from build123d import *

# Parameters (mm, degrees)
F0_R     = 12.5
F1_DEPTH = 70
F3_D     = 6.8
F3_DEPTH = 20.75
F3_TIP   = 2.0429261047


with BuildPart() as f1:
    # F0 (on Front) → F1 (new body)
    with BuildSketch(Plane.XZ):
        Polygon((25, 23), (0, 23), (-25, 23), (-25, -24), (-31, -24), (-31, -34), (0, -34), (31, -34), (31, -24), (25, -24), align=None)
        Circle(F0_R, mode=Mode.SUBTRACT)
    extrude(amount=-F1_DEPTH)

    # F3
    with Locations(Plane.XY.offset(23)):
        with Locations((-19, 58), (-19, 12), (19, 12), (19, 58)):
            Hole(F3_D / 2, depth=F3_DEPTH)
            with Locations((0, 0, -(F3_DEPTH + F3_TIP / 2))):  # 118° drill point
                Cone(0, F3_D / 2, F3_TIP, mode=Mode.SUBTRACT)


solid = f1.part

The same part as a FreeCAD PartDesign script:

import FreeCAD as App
import Part
import Sketcher
Q = App.Units.Quantity

doc = App.newDocument("Part")
body = doc.addObject("PartDesign::Body", "Body")

# Sketch on XZ plane
sketch1 = doc.addObject("Sketcher::SketchObject", "Sketch")
body.addObject(sketch1)
sketch1.AttachmentSupport = (doc.XZ_Plane, [""])
sketch1.MapMode = "FlatFace"
sketch1.addGeometry([
    Part.LineSegment(App.Vector(25, 23, 0), App.Vector(-25, 23, 0)),  # 0
    Part.LineSegment(App.Vector(-25, 23, 0), App.Vector(-25, -24, 0)),  # 1
    Part.LineSegment(App.Vector(-25, -24, 0), App.Vector(-31, -24, 0)),  # 2
    Part.LineSegment(App.Vector(-31, -24, 0), App.Vector(-31, -34, 0)),  # 3
    Part.LineSegment(App.Vector(-31, -34, 0), App.Vector(31, -34, 0)),  # 4
    Part.LineSegment(App.Vector(31, -34, 0), App.Vector(31, -24, 0)),  # 5
    Part.LineSegment(App.Vector(31, -24, 0), App.Vector(25, -24, 0)),  # 6
    Part.LineSegment(App.Vector(25, -24, 0), App.Vector(25, 23, 0)),  # 7
    Part.Circle(App.Vector(0, 0, 0), App.Vector(0, 0, 1), 12),  # 8
], False)
sketch1.addConstraint([
    Sketcher.Constraint("Coincident", 0, 2, 1, 1),
    Sketcher.Constraint("Coincident", 1, 2, 2, 1),
    Sketcher.Constraint("Coincident", 2, 2, 3, 1),
    Sketcher.Constraint("Coincident", 3, 2, 4, 1),
    Sketcher.Constraint("Coincident", 4, 2, 5, 1),
    Sketcher.Constraint("Coincident", 5, 2, 6, 1),
    Sketcher.Constraint("Coincident", 6, 2, 7, 1),
    Sketcher.Constraint("Coincident", 7, 2, 0, 1),
    Sketcher.Constraint("Horizontal", 0),
    Sketcher.Constraint("Vertical", 1),
    Sketcher.Constraint("Horizontal", 2),
    Sketcher.Constraint("Vertical", 3),
    Sketcher.Constraint("Horizontal", 4),
    Sketcher.Constraint("Vertical", 5),
    Sketcher.Constraint("Horizontal", 6),
    Sketcher.Constraint("Vertical", 7),
    Sketcher.Constraint("Coincident", 8, 3, -1, 1),
    Sketcher.Constraint("Symmetric", 2, 2, 5, 2, -2),
    Sketcher.Constraint("Equal", 2, 6),
    Sketcher.Constraint("Diameter", 8, Q("25 mm")),
    Sketcher.Constraint("DistanceX", 0, 2, 0, 1, Q("50 mm")),
    Sketcher.Constraint("DistanceX", 2, 2, 2, 1, Q("6 mm")),
    Sketcher.Constraint("DistanceY", 1, 2, 1, 1, Q("47 mm")),
    Sketcher.Constraint("DistanceY", 3, 2, 3, 1, Q("10 mm")),
    Sketcher.Constraint("DistanceY", -1, 1, 0, 2, Q("23 mm")),
])
pad1 = doc.addObject("PartDesign::Pad", "Pad")
body.addObject(pad1)
pad1.Profile = sketch1
pad1.Length = 70
pad1.Reversed = True

# Sketch on XY plane
sketch2 = doc.addObject("Sketcher::SketchObject", "Sketch001")
body.addObject(sketch2)
sketch2.AttachmentSupport = (doc.XY_Plane, [""])
sketch2.MapMode = "FlatFace"
sketch2.AttachmentOffset = App.Placement(App.Vector(0, 0, 23), App.Rotation())
sketch2.addGeometry([
    Part.Circle(App.Vector(-19, 58, 0), App.Vector(0, 0, 1), 3.4),
    Part.Circle(App.Vector(-19, 12, 0), App.Vector(0, 0, 1), 3.4),
    Part.Circle(App.Vector(19, 12, 0), App.Vector(0, 0, 1), 3.4),
    Part.Circle(App.Vector(19, 58, 0), App.Vector(0, 0, 1), 3.4),
], False)
sketch2.addConstraint([
    Sketcher.Constraint("Equal", 0, 1),
    Sketcher.Constraint("Equal", 1, 2),
    Sketcher.Constraint("Equal", 2, 3),
    Sketcher.Constraint("Symmetric", 1, 3, 2, 3, -2),
    Sketcher.Constraint("Symmetric", 0, 3, 3, 3, -2),
    Sketcher.Constraint("Vertical", 0, 3, 1, 3),
    Sketcher.Constraint("Diameter", 0, Q("6.8 mm")),
    Sketcher.Constraint("DistanceX", 0, 3, -1, 1, Q("19 mm")),
    Sketcher.Constraint("DistanceY", -1, 1, 0, 3, Q("58 mm")),
    Sketcher.Constraint("DistanceY", -1, 1, 1, 3, Q("12 mm")),
])
doc.recompute()
hole = doc.addObject("PartDesign::Hole", "Hole")
body.addObject(hole)
hole.Profile = sketch2
hole.ThreadType = "None"
hole.Diameter = 6.8
hole.DepthType = "Dimension"
hole.Depth = 20.75
hole.DrillPoint = "Angled"
hole.DrillPointAngle = 118

doc.recompute()
